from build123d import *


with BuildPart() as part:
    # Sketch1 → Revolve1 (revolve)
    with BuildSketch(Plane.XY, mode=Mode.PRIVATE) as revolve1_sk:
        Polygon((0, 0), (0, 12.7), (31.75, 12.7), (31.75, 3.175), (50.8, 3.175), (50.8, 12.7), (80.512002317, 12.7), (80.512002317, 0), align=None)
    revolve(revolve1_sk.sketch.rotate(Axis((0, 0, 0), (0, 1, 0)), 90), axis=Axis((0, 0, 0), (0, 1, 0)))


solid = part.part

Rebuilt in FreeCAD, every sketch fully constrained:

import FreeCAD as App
import Part
import Sketcher

V = App.Vector
Q = App.Units.Quantity


def add_polygon(sketch, points):
    """Adds a closed chain of lines whose ends are joined by coincident constraints."""
    first, n = sketch.GeometryCount, len(points)
    for a, b in zip(points, points[1:] + points[:1]):
        sketch.addGeometry(Part.LineSegment(App.Vector(*a, 0), App.Vector(*b, 0)), False)
    for i in range(n):
        sketch.addConstraint(Sketcher.Constraint("Coincident", first + i, 2, first + (i + 1) % n, 1))

doc = App.newDocument("Part")
body = doc.addObject("PartDesign::Body", "Body")

# Sketch on XY plane
sketch1 = body.newObject("Sketcher::SketchObject", "Sketch")
sketch1.AttachmentSupport = (doc.getObject("XY_Plane"), [""])
sketch1.MapMode = "FlatFace"
add_polygon(sketch1, [(0, 12.7), (0, 0), (80.512002, 0), (80.512002, 12.7), (50.8, 12.7), (50.8, 3.175), (31.75, 3.175), (31.75, 12.7)])  # lines 0-7
sketch1.addConstraint(Sketcher.Constraint("Vertical", 0))
sketch1.addConstraint(Sketcher.Constraint("Horizontal", 1))
sketch1.addConstraint(Sketcher.Constraint("Vertical", 2))
sketch1.addConstraint(Sketcher.Constraint("Horizontal", 3))
sketch1.addConstraint(Sketcher.Constraint("Vertical", 4))
sketch1.addConstraint(Sketcher.Constraint("Horizontal", 5))
sketch1.addConstraint(Sketcher.Constraint("Vertical", 6))
sketch1.addConstraint(Sketcher.Constraint("Horizontal", 7))
sketch1.addConstraint(Sketcher.Constraint("Coincident", 0, 2, -1, 1))
sketch1.addConstraint(Sketcher.Constraint("Horizontal", 3, 2, 6, 2))
sketch1.addConstraint(Sketcher.Constraint("DistanceY", 0, 2, 0, 1, Q("0.5 in")))
sketch1.addConstraint(Sketcher.Constraint("DistanceX", -1, 1, 3, 2, Q("2 in")))
sketch1.addConstraint(Sketcher.Constraint("DistanceX", 5, 2, 5, 1, Q("0.75 in")))
sketch1.addConstraint(Sketcher.Constraint("DistanceY", 4, 2, 4, 1, Q("0.375 in")))
sketch1.addConstraint(Sketcher.Constraint("DistanceX", 1, 1, 1, 2, Q("80.512002 mm")))
revolution = body.newObject("PartDesign::Revolution", "Revolution")
revolution.Profile = sketch1
revolution.ReferenceAxis = (sketch1, ["V_Axis"])
revolution.Angle = 360

doc.recompute()
